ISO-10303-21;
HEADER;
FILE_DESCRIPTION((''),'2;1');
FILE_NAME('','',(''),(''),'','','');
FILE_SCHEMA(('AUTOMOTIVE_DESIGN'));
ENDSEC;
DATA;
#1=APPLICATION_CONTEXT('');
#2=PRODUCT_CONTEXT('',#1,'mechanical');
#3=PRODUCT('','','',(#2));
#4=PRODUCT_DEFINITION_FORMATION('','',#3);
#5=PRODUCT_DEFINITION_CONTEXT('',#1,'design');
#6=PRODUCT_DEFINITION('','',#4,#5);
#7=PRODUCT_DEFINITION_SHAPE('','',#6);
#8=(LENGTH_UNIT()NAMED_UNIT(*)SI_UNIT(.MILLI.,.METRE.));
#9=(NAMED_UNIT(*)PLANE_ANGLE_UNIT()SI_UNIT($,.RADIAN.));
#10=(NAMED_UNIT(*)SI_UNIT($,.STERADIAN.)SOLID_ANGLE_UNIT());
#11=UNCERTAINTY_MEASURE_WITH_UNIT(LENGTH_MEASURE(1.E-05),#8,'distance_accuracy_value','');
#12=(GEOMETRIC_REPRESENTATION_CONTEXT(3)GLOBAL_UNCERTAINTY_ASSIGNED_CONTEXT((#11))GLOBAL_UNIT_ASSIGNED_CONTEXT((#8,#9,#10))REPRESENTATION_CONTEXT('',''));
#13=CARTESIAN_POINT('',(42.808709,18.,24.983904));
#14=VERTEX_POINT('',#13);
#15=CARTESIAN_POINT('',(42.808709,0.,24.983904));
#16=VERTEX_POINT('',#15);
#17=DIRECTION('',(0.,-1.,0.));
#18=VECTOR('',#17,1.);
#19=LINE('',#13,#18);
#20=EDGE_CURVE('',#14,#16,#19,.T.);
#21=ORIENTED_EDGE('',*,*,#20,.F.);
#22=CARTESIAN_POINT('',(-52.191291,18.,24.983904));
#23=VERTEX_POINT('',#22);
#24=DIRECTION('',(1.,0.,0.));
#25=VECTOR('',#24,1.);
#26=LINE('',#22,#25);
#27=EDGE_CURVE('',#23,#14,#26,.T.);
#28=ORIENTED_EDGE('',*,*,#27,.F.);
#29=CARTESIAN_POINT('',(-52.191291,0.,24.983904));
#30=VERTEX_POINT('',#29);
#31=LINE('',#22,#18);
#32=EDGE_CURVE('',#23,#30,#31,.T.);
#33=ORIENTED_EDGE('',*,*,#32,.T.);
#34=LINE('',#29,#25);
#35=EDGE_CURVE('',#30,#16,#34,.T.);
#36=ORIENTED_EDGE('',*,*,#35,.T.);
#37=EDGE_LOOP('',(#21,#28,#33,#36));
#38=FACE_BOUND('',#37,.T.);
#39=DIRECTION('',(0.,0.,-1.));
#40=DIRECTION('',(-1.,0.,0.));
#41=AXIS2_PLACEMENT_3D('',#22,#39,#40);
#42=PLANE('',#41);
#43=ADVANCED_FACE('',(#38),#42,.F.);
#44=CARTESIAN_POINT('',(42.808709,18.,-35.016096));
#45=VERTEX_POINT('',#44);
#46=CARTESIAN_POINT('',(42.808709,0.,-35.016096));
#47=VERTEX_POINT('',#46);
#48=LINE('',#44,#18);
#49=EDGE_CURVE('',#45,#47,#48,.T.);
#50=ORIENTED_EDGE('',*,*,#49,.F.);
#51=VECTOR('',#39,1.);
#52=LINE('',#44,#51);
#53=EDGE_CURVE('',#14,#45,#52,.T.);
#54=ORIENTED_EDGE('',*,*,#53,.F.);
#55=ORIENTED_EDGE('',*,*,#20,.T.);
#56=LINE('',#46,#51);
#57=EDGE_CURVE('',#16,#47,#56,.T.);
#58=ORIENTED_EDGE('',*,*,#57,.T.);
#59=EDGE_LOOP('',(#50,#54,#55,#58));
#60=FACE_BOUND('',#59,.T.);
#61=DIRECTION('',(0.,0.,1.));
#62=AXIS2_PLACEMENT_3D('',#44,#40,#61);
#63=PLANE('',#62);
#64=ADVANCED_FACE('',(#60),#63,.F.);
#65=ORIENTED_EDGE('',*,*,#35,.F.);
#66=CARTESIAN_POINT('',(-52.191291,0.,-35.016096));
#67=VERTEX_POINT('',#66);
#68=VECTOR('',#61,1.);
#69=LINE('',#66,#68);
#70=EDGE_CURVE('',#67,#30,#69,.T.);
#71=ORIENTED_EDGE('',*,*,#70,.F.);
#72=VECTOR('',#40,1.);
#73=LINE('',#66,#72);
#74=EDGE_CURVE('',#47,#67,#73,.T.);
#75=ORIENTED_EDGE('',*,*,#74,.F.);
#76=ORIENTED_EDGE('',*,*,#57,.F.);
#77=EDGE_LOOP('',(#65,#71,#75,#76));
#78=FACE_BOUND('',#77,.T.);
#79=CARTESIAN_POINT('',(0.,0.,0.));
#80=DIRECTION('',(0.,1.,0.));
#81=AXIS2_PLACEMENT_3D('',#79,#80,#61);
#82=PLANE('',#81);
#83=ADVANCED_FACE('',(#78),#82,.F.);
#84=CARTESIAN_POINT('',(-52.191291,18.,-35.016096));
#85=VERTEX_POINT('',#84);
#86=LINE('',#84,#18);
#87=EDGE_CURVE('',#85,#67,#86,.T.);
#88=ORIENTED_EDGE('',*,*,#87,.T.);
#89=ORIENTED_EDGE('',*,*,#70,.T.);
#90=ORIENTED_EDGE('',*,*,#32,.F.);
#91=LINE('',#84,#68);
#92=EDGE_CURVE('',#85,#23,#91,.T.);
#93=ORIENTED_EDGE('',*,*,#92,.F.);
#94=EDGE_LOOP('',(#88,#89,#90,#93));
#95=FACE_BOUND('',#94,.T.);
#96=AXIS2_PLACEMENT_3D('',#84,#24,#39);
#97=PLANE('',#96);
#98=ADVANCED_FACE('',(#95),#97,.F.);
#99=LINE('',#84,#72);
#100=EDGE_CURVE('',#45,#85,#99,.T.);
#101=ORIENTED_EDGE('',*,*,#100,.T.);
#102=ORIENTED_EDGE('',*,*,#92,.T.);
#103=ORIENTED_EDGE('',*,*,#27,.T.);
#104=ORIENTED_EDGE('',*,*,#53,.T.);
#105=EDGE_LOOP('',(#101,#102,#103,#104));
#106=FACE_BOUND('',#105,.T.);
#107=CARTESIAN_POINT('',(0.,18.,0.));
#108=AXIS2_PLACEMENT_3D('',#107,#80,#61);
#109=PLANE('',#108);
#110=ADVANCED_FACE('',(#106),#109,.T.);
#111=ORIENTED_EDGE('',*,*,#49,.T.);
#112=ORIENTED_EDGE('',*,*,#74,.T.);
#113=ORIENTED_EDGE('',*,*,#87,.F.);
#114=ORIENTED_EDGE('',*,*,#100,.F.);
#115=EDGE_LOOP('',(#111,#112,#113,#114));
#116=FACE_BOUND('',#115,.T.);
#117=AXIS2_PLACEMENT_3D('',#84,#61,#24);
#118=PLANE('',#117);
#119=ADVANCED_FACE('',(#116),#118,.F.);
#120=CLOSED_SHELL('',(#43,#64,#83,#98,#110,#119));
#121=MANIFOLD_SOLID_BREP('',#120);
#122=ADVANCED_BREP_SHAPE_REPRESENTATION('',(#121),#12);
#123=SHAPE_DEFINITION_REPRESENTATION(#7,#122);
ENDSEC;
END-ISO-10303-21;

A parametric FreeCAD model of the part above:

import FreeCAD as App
import Part
import Sketcher

V = App.Vector
Q = App.Units.Quantity

doc = App.newDocument("Part")
body = doc.addObject("PartDesign::Body", "Body")

sketch1 = body.newObject("Sketcher::SketchObject", "Sketch")
sketch1.AttachmentSupport = (doc.getObject("XZ_Plane"), [""])
sketch1.MapMode = "FlatFace"
sketch1.addGeometry([
    Part.LineSegment(V(-52.191291, -35.016096, 0), V(-52.191291, 24.983904, 0)),
    Part.LineSegment(V(-52.191291, 24.983904, 0), V(42.808709, 24.983904, 0)),
    Part.LineSegment(V(42.808709, 24.983904, 0), V(42.808709, -35.016096, 0)),
    Part.LineSegment(V(42.808709, -35.016096, 0), V(-52.191291, -35.016096, 0)),
], False)
sketch1.addConstraint([
    Sketcher.Constraint("Coincident", 0, 2, 1, 1),
    Sketcher.Constraint("Coincident", 1, 2, 2, 1),
    Sketcher.Constraint("Coincident", 2, 2, 3, 1),
    Sketcher.Constraint("Coincident", 3, 2, 0, 1),
    Sketcher.Constraint("Vertical", 0),
    Sketcher.Constraint("Horizontal", 1),
    Sketcher.Constraint("Vertical", 2),
    Sketcher.Constraint("Horizontal", 3),
    Sketcher.Constraint("DistanceX", 1, 1, 1, 2, Q("95 mm")),
    Sketcher.Constraint("DistanceY", 0, 1, 0, 2, Q("60 mm")),
    Sketcher.Constraint("DistanceX", 0, 2, -1, 1, Q("52.191291 mm")),
    Sketcher.Constraint("DistanceY", -1, 1, 0, 2, Q("24.983904 mm")),
])
pad1 = body.newObject("PartDesign::Pad", "Pad")
pad1.Profile = sketch1
pad1.Length = 18
pad1.Reversed = True

doc.recompute()
